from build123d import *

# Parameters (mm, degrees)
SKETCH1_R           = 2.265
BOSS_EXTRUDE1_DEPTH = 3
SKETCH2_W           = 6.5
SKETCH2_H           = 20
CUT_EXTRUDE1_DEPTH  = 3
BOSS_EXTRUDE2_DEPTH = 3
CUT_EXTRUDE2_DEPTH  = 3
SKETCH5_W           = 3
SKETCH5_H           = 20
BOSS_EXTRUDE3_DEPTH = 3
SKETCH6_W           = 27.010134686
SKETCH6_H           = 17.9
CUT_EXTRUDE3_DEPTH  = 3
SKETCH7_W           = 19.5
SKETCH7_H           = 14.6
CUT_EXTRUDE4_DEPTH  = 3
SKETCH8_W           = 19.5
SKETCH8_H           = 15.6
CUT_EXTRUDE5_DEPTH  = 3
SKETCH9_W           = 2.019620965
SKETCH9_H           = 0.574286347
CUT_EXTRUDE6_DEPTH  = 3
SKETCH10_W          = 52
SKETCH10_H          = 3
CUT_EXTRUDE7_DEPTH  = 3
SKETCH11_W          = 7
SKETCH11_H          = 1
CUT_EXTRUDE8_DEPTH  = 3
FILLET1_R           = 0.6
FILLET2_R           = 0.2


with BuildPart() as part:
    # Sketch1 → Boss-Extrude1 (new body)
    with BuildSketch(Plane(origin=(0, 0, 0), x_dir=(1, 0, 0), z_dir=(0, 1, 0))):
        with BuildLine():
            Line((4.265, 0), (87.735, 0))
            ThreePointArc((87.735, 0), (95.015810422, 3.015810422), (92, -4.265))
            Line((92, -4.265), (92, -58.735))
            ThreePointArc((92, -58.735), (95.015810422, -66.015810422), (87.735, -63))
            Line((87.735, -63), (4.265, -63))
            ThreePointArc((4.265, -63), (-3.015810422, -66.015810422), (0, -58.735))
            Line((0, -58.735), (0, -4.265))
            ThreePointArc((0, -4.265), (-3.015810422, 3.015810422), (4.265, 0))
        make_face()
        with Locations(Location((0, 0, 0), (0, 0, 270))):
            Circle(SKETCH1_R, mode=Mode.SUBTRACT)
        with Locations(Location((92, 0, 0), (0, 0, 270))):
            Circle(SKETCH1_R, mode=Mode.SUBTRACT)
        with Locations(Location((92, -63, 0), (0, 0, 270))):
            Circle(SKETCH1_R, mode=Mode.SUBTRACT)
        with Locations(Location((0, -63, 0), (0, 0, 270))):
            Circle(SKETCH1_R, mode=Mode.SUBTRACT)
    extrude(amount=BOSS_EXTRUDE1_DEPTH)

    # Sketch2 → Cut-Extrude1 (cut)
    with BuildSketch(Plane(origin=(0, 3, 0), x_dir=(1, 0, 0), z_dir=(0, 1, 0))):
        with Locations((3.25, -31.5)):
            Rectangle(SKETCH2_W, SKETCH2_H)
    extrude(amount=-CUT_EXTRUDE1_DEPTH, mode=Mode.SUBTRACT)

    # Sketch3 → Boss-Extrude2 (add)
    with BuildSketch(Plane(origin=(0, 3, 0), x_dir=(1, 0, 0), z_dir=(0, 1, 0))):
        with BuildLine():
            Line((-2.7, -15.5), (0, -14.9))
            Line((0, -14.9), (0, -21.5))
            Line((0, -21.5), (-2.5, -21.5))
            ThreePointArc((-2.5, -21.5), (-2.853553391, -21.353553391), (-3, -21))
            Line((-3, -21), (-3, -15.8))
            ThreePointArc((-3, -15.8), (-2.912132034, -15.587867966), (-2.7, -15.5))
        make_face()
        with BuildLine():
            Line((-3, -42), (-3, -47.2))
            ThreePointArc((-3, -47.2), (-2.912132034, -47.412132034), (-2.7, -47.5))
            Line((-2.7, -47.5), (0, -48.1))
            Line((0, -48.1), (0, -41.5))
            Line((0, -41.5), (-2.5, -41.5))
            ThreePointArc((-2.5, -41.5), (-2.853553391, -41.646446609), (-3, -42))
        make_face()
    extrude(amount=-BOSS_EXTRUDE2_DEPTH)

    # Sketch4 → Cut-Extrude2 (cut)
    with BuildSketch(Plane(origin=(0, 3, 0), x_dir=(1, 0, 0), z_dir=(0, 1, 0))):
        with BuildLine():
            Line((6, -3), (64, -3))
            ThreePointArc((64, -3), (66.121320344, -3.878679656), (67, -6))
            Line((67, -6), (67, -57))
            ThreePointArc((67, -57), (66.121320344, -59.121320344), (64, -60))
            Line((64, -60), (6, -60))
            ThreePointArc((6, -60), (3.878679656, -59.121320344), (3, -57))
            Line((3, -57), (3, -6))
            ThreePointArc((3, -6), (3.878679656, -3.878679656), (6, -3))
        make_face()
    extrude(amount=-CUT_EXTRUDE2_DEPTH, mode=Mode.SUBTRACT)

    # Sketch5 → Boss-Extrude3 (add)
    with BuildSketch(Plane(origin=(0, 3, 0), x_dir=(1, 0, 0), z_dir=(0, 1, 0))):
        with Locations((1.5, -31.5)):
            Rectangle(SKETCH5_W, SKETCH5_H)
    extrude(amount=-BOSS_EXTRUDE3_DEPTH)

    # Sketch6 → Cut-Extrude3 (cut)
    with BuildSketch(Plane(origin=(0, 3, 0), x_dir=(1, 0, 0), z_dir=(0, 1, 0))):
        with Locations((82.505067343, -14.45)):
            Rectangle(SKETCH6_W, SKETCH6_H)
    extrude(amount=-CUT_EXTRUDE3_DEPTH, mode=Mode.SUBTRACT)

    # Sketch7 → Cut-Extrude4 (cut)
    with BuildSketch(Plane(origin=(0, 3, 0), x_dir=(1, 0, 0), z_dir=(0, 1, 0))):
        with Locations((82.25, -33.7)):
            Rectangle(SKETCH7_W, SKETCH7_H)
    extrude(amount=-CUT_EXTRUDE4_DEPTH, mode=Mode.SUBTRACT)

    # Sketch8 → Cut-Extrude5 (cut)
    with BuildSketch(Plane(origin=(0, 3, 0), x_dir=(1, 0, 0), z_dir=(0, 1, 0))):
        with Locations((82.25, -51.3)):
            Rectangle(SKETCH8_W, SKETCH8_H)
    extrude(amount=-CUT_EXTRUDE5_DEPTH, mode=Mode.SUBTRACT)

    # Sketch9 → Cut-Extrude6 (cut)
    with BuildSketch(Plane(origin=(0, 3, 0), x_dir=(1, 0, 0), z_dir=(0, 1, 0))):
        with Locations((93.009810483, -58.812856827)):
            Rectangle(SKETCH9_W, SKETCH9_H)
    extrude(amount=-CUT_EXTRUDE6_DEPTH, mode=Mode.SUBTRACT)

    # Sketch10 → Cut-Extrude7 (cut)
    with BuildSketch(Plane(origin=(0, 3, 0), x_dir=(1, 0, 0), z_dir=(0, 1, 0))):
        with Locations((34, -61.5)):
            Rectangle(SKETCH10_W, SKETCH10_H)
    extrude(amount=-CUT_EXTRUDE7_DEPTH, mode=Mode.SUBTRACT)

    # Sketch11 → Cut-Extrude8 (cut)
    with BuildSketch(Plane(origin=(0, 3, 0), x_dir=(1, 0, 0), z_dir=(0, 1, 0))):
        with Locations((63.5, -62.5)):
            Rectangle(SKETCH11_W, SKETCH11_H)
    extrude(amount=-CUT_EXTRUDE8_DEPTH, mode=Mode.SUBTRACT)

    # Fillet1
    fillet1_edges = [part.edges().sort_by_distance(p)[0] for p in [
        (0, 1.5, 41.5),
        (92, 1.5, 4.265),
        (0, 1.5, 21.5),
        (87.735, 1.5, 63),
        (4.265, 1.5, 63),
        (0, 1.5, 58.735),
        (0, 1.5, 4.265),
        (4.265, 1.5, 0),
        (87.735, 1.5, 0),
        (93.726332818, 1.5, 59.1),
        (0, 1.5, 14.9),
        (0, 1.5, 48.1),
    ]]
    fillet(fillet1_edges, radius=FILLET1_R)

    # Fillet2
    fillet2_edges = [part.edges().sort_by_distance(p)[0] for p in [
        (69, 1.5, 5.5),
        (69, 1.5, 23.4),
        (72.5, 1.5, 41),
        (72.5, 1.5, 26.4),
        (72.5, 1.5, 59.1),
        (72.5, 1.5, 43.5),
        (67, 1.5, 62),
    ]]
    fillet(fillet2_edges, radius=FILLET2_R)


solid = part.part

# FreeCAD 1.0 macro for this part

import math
import FreeCAD as App
import Part
import Sketcher
Q = App.Units.Quantity


def edges_at(feature, points):
    """Names of the edges that pass closest to the given points."""
    edges = feature.Shape.Edges
    near = lambda p: min(range(len(edges)), key=lambda i: edges[i].distToShape(Part.Vertex(*p))[0])
    return sorted({f"Edge{near(p) + 1}" for p in points})


def add_polygon(sketch, points):
    """Adds a closed chain of lines whose ends are joined by coincident constraints."""
    first, n = sketch.GeometryCount, len(points)
    for a, b in zip(points, points[1:] + points[:1]):
        sketch.addGeometry(Part.LineSegment(App.Vector(*a, 0), App.Vector(*b, 0)), False)
    for i in range(n):
        sketch.addConstraint(Sketcher.Constraint("Coincident", first + i, 2, first + (i + 1) % n, 1))

doc = App.newDocument("Part")
body = doc.addObject("PartDesign::Body", "Body")

sketch1 = body.newObject("Sketcher::SketchObject", "Sketch")
sketch1.AttachmentSupport = (doc.getObject("XZ_Plane"), [""])
sketch1.MapMode = "FlatFace"
sketch1.addGeometry([
    Part.LineSegment(App.Vector(87.7, 0, 0), App.Vector(4.3, 0, 0)),
    Part.ArcOfCircle(Part.Circle(App.Vector(0, 0, 0), App.Vector(0, 0, 1), 4.3), math.radians(90), math.radians(360)),
    Part.LineSegment(App.Vector(0, 4.3, 0), App.Vector(0, 58.7, 0)),
    Part.ArcOfCircle(Part.Circle(App.Vector(0, 63, 0), App.Vector(0, 0, 1), 4.3), math.radians(0), math.radians(270)),
    Part.LineSegment(App.Vector(4.3, 63, 0), App.Vector(87.7, 63, 0)),
    Part.ArcOfCircle(Part.Circle(App.Vector(92, 63, 0), App.Vector(0, 0, 1), 4.3), math.radians(-90), math.radians(180)),
    Part.LineSegment(App.Vector(92, 58.7, 0), App.Vector(92, 4.3, 0)),
    Part.ArcOfCircle(Part.Circle(App.Vector(92, 0, 0), App.Vector(0, 0, 1), 4.3), math.radians(180), math.radians(450)),
    Part.Circle(App.Vector(92, 63, 0), App.Vector(0, 0, 1), 2.3),
    Part.Circle(App.Vector(0, 63, 0), App.Vector(0, 0, 1), 2.3),
    Part.Circle(App.Vector(92, 0, 0), App.Vector(0, 0, 1), 2.3),
    Part.Circle(App.Vector(0, 0, 0), App.Vector(0, 0, 1), 2.3),
], False)
sketch1.addConstraint([
    Sketcher.Constraint("Coincident", 0, 2, 1, 2),
    Sketcher.Constraint("Coincident", 1, 1, 2, 1),
    Sketcher.Constraint("Coincident", 2, 2, 3, 2),
    Sketcher.Constraint("Coincident", 3, 1, 4, 1),
    Sketcher.Constraint("Coincident", 4, 2, 5, 2),
    Sketcher.Constraint("Coincident", 5, 1, 6, 1),
    Sketcher.Constraint("Coincident", 6, 2, 7, 2),
    Sketcher.Constraint("Coincident", 7, 1, 0, 1),
    Sketcher.Constraint("Horizontal", 0),
    Sketcher.Constraint("Vertical", 2),
    Sketcher.Constraint("Horizontal", 4),
    Sketcher.Constraint("Vertical", 6),
    Sketcher.Constraint("Coincident", 1, 3, -1, 1),
    Sketcher.Constraint("Coincident", 11, 3, -1, 1),
    Sketcher.Constraint("Coincident", 8, 3, 5, 3),
    Sketcher.Constraint("Coincident", 9, 3, 3, 3),
    Sketcher.Constraint("Coincident", 10, 3, 7, 3),
    Sketcher.Constraint("Equal", 1, 3),
    Sketcher.Constraint("Equal", 3, 5),
    Sketcher.Constraint("Equal", 5, 7),
    Sketcher.Constraint("Equal", 8, 9),
    Sketcher.Constraint("Equal", 9, 10),
    Sketcher.Constraint("Equal", 10, 11),
    Sketcher.Constraint("PointOnObject", 3, 3, -2),
    Sketcher.Constraint("PointOnObject", 7, 3, -1),
    Sketcher.Constraint("PointOnObject", 0, 2, -1),
    Sketcher.Constraint("PointOnObject", 1, 1, -2),
    Sketcher.Constraint("Horizontal", 3, 3, 5, 3),
    Sketcher.Constraint("Horizontal", 9, 3, 3, 1),
    Sketcher.Constraint("Vertical", 5, 3, 7, 3),
    Sketcher.Constraint("Vertical", 10, 3, 5, 1),
    Sketcher.Constraint("Diameter", 8, Q("4.53 mm")),
    Sketcher.Constraint("DistanceY", -1, 1, 3, 3, Q("63 mm")),
    Sketcher.Constraint("DistanceX", -1, 1, 5, 3, Q("92 mm")),
    Sketcher.Constraint("Radius", 1, Q("4.265 mm")),
])
pad1 = body.newObject("PartDesign::Pad", "Pad")
pad1.Profile = sketch1
pad1.Length = 3
pad1.Reversed = True

sketch2 = body.newObject("Sketcher::SketchObject", "Sketch001")
sketch2.AttachmentSupport = (doc.getObject("XZ_Plane"), [""])
sketch2.MapMode = "FlatFace"
sketch2.AttachmentOffset = App.Placement(App.Vector(0, 0, -3), App.Rotation())
add_polygon(sketch2, [(0, 22), (0, 42), (6, 42), (6, 22)])
sketch2.addConstraint([
    Sketcher.Constraint("Vertical", 0),
    Sketcher.Constraint("Horizontal", 1),
    Sketcher.Constraint("Vertical", 2),
    Sketcher.Constraint("Horizontal", 3),
    Sketcher.Constraint("PointOnObject", 0, 2, -2),
    Sketcher.Constraint("DistanceY", 0, 1, 0, 2, Q("20 mm")),
    Sketcher.Constraint("DistanceX", 1, 1, 1, 2, Q("6.5 mm")),
    Sketcher.Constraint("DistanceY", -1, 1, 0, 2, Q("41.5 mm")),
])
pocket1 = body.newObject("PartDesign::Pocket", "Pocket")
pocket1.Profile = sketch2
pocket1.Length = 3
pocket1.Reversed = True

sketch3 = body.newObject("Sketcher::SketchObject", "Sketch002")
sketch3.AttachmentSupport = (doc.getObject("XZ_Plane"), [""])
sketch3.MapMode = "FlatFace"
sketch3.AttachmentOffset = App.Placement(App.Vector(0, 0, -3), App.Rotation())
sketch3.addGeometry([
    Part.LineSegment(App.Vector(0, 14.9, 0), App.Vector(-2.7, 15.5, 0)),
    Part.ArcOfCircle(Part.Circle(App.Vector(-2.7, 15.8, 0), App.Vector(0, 0, 1), 0.3), math.radians(-180), math.radians(-90)),
    Part.LineSegment(App.Vector(-3, 15.8, 0), App.Vector(-3, 21, 0)),
    Part.ArcOfCircle(Part.Circle(App.Vector(-2.5, 21, 0), App.Vector(0, 0, 1), 0.5), math.radians(90), math.radians(180)),
    Part.LineSegment(App.Vector(-2.5, 21.5, 0), App.Vector(0, 21.5, 0)),
    Part.LineSegment(App.Vector(0, 21.5, 0), App.Vector(0, 14.9, 0)),
    Part.LineSegment(App.Vector(-3, 42, 0), App.Vector(-3, 47.2, 0)),
    Part.ArcOfCircle(Part.Circle(App.Vector(-2.7, 47.2, 0), App.Vector(0, 0, 1), 0.3), math.radians(90), math.radians(180)),
    Part.LineSegment(App.Vector(-2.7, 47.5, 0), App.Vector(0, 48.1, 0)),
    Part.LineSegment(App.Vector(0, 48.1, 0), App.Vector(0, 41.5, 0)),
    Part.LineSegment(App.Vector(0, 41.5, 0), App.Vector(-2.5, 41.5, 0)),
    Part.ArcOfCircle(Part.Circle(App.Vector(-2.5, 42, 0), App.Vector(0, 0, 1), 0.5), math.radians(180), math.radians(270)),
], False)
sketch3.addConstraint([
    Sketcher.Constraint("Coincident", 0, 2, 1, 2),
    Sketcher.Constraint("Tangent", 1, 1, 2, 1),
    Sketcher.Constraint("Tangent", 2, 2, 3, 2),
    Sketcher.Constraint("Tangent", 3, 1, 4, 1),
    Sketcher.Constraint("Coincident", 4, 2, 5, 1),
    Sketcher.Constraint("Coincident", 5, 2, 0, 1),
    Sketcher.Constraint("Tangent", 6, 2, 7, 2),
    Sketcher.Constraint("Coincident", 7, 1, 8, 1),
    Sketcher.Constraint("Coincident", 8, 2, 9, 1),
    Sketcher.Constraint("Coincident", 9, 2, 10, 1),
    Sketcher.Constraint("Tangent", 10, 2, 11, 2),
    Sketcher.Constraint("Tangent", 11, 1, 6, 1),
    Sketcher.Constraint("Vertical", 2),
    Sketcher.Constraint("Horizontal", 4),
    Sketcher.Constraint("Vertical", 5),
    Sketcher.Constraint("Vertical", 6),
    Sketcher.Constraint("Vertical", 9),
    Sketcher.Constraint("Horizontal", 10),
    Sketcher.Constraint("Equal", 1, 7),
    Sketcher.Constraint("Equal", 3, 11),
    Sketcher.Constraint("PointOnObject", 4, 2, -2),
    Sketcher.Constraint("PointOnObject", 8, 2, -2),
    Sketcher.Constraint("Vertical", 1, 3, 7, 3),
    Sketcher.Constraint("Vertical", 7, 3, 0, 2),
    Sketcher.Constraint("Vertical", 0, 2, 7, 1),
    Sketcher.Constraint("Equal", 2, 6),
    Sketcher.Constraint("Equal", 5, 9),
    Sketcher.Constraint("Radius", 1, Q("0.3 mm")),
    Sketcher.Constraint("Radius", 3, Q("0.5 mm")),
    Sketcher.Constraint("DistanceX", 4, 1, 4, 2, Q("2.5 mm")),
    Sketcher.Constraint("DistanceY", 2, 1, 2, 2, Q("5.2 mm")),
    Sketcher.Constraint("DistanceY", 5, 2, 5, 1, Q("6.6 mm")),
    Sketcher.Constraint("DistanceY", -1, 1, 3, 3, Q("21 mm")),
    Sketcher.Constraint("DistanceY", -1, 1, 11, 3, Q("42 mm")),
])
pad2 = body.newObject("PartDesign::Pad", "Pad001")
pad2.Profile = sketch3
pad2.Length = 3

sketch4 = body.newObject("Sketcher::SketchObject", "Sketch003")
sketch4.AttachmentSupport = (doc.getObject("XZ_Plane"), [""])
sketch4.MapMode = "FlatFace"
sketch4.AttachmentOffset = App.Placement(App.Vector(0, 0, -3), App.Rotation())
sketch4.addGeometry([
    Part.LineSegment(App.Vector(64, 3, 0), App.Vector(6, 3, 0)),
    Part.ArcOfCircle(Part.Circle(App.Vector(6, 6, 0), App.Vector(0, 0, 1), 3), math.radians(180), math.radians(270)),
    Part.LineSegment(App.Vector(3, 6, 0), App.Vector(3, 57, 0)),
    Part.ArcOfCircle(Part.Circle(App.Vector(6, 57, 0), App.Vector(0, 0, 1), 3), math.radians(90), math.radians(180)),
    Part.LineSegment(App.Vector(6, 60, 0), App.Vector(64, 60, 0)),
    Part.ArcOfCircle(Part.Circle(App.Vector(64, 57, 0), App.Vector(0, 0, 1), 3), math.radians(0), math.radians(90)),
    Part.LineSegment(App.Vector(67, 57, 0), App.Vector(67, 6, 0)),
    Part.ArcOfCircle(Part.Circle(App.Vector(64, 6, 0), App.Vector(0, 0, 1), 3), math.radians(-90), math.radians(0)),
], False)
sketch4.addConstraint([
    Sketcher.Constraint("Tangent", 0, 2, 1, 2),
    Sketcher.Constraint("Tangent", 1, 1, 2, 1),
    Sketcher.Constraint("Tangent", 2, 2, 3, 2),
    Sketcher.Constraint("Tangent", 3, 1, 4, 1),
    Sketcher.Constraint("Tangent", 4, 2, 5, 2),
    Sketcher.Constraint("Tangent", 5, 1, 6, 1),
    Sketcher.Constraint("Tangent", 6, 2, 7, 2),
    Sketcher.Constraint("Tangent", 7, 1, 0, 1),
    Sketcher.Constraint("Horizontal", 0),
    Sketcher.Constraint("Vertical", 2),
    Sketcher.Constraint("Horizontal", 4),
    Sketcher.Constraint("Vertical", 6),
    Sketcher.Constraint("Equal", 1, 3),
    Sketcher.Constraint("Equal", 3, 5),
    Sketcher.Constraint("Equal", 5, 7),
    Sketcher.Constraint("Radius", 1, Q("3 mm")),
    Sketcher.Constraint("DistanceX", 0, 2, 0, 1, Q("58 mm")),
    Sketcher.Constraint("DistanceY", 2, 1, 2, 2, Q("51 mm")),
    Sketcher.Constraint("DistanceX", -1, 1, 1, 3, Q("6 mm")),
    Sketcher.Constraint("DistanceY", -1, 1, 1, 3, Q("6 mm")),
])
pocket2 = body.newObject("PartDesign::Pocket", "Pocket001")
pocket2.Profile = sketch4
pocket2.Length = 3
pocket2.Reversed = True

sketch5 = body.newObject("Sketcher::SketchObject", "Sketch004")
sketch5.AttachmentSupport = (doc.getObject("XZ_Plane"), [""])
sketch5.MapMode = "FlatFace"
sketch5.AttachmentOffset = App.Placement(App.Vector(0, 0, -3), App.Rotation())
add_polygon(sketch5, [(0, 21.5), (0, 41.5), (3, 41.5), (3, 21.5)])
sketch5.addConstraint([
    Sketcher.Constraint("Vertical", 0),
    Sketcher.Constraint("Horizontal", 1),
    Sketcher.Constraint("Vertical", 2),
    Sketcher.Constraint("Horizontal", 3),
    Sketcher.Constraint("PointOnObject", 0, 2, -2),
    Sketcher.Constraint("DistanceX", 1, 1, 1, 2, Q("3 mm")),
    Sketcher.Constraint("DistanceY", 0, 1, 0, 2, Q("20 mm")),
    Sketcher.Constraint("DistanceY", -1, 1, 0, 2, Q("41.5 mm")),
])
pad3 = body.newObject("PartDesign::Pad", "Pad002")
pad3.Profile = sketch5
pad3.Length = 3

sketch6 = body.newObject("Sketcher::SketchObject", "Sketch005")
sketch6.AttachmentSupport = (doc.getObject("XZ_Plane"), [""])
sketch6.MapMode = "FlatFace"
sketch6.AttachmentOffset = App.Placement(App.Vector(0, 0, -3), App.Rotation())
add_polygon(sketch6, [(69, 6), (69, 23), (96, 23), (96, 6)])
sketch6.addConstraint([
    Sketcher.Constraint("Vertical", 0),
    Sketcher.Constraint("Horizontal", 1),
    Sketcher.Constraint("Vertical", 2),
    Sketcher.Constraint("Horizontal", 3),
    Sketcher.Constraint("DistanceY", 0, 1, 0, 2, Q("17.9 mm")),
    Sketcher.Constraint("DistanceX", -1, 1, 0, 2, Q("69 mm")),
    Sketcher.Constraint("DistanceY", -1, 1, 0, 2, Q("23.4 mm")),
    Sketcher.Constraint("DistanceX", 1, 1, 1, 2, Q("27.010135 mm")),
])
pocket3 = body.newObject("PartDesign::Pocket", "Pocket002")
pocket3.Profile = sketch6
pocket3.Length = 3
pocket3.Reversed = True

sketch7 = body.newObject("Sketcher::SketchObject", "Sketch006")
sketch7.AttachmentSupport = (doc.getObject("XZ_Plane"), [""])
sketch7.MapMode = "FlatFace"
sketch7.AttachmentOffset = App.Placement(App.Vector(0, 0, -3), App.Rotation())
add_polygon(sketch7, [(72, 26), (72, 41), (92, 41), (92, 26)])
sketch7.addConstraint([
    Sketcher.Constraint("Vertical", 0),
    Sketcher.Constraint("Horizontal", 1),
    Sketcher.Constraint("Vertical", 2),
    Sketcher.Constraint("Horizontal", 3),
    Sketcher.Constraint("DistanceX", 1, 1, 1, 2, Q("19.5 mm")),
    Sketcher.Constraint("DistanceY", 0, 1, 0, 2, Q("14.6 mm")),
    Sketcher.Constraint("DistanceY", -1, 1, 0, 2, Q("41 mm")),
    Sketcher.Constraint("DistanceX", -1, 1, 1, 2, Q("92 mm")),
])
pocket4 = body.newObject("PartDesign::Pocket", "Pocket003")
pocket4.Profile = sketch7
pocket4.Length = 3
pocket4.Reversed = True

sketch8 = body.newObject("Sketcher::SketchObject", "Sketch007")
sketch8.AttachmentSupport = (doc.getObject("XZ_Plane"), [""])
sketch8.MapMode = "FlatFace"
sketch8.AttachmentOffset = App.Placement(App.Vector(0, 0, -3), App.Rotation())
add_polygon(sketch8, [(72, 44), (72, 59), (92, 59), (92, 44)])
sketch8.addConstraint([
    Sketcher.Constraint("Vertical", 0),
    Sketcher.Constraint("Horizontal", 1),
    Sketcher.Constraint("Vertical", 2),
    Sketcher.Constraint("Horizontal", 3),
    Sketcher.Constraint("DistanceX", 1, 1, 1, 2, Q("19.5 mm")),
    Sketcher.Constraint("DistanceY", 0, 1, 0, 2, Q("15.6 mm")),
    Sketcher.Constraint("DistanceX", -1, 1, 1, 2, Q("92 mm")),
    Sketcher.Constraint("DistanceY", -1, 1, 0, 2, Q("59.1 mm")),
])
pocket5 = body.newObject("PartDesign::Pocket", "Pocket004")
pocket5.Profile = sketch8
pocket5.Length = 3
pocket5.Reversed = True

sketch9 = body.newObject("Sketcher::SketchObject", "Sketch008")
sketch9.AttachmentSupport = (doc.getObject("XZ_Plane"), [""])
sketch9.MapMode = "FlatFace"
sketch9.AttachmentOffset = App.Placement(App.Vector(0, 0, -3), App.Rotation())
add_polygon(sketch9, [(92, 58.5), (92, 59.1), (94, 59.1), (94, 58.5)])
sketch9.addConstraint([
    Sketcher.Constraint("Vertical", 0),
    Sketcher.Constraint("Horizontal", 1),
    Sketcher.Constraint("Vertical", 2),
    Sketcher.Constraint("Horizontal", 3),
    Sketcher.Constraint("DistanceX", -1, 1, 0, 2, Q("92 mm")),
    Sketcher.Constraint("DistanceY", -1, 1, 0, 2, Q("59.1 mm")),
    Sketcher.Constraint("DistanceX", 1, 1, 1, 2, Q("2.019621 mm")),
    Sketcher.Constraint("DistanceY", 0, 1, 0, 2, Q("0.574286 mm")),
])
pocket6 = body.newObject("PartDesign::Pocket", "Pocket005")
pocket6.Profile = sketch9
pocket6.Length = 3
pocket6.Reversed = True

sketch10 = body.newObject("Sketcher::SketchObject", "Sketch009")
sketch10.AttachmentSupport = (doc.getObject("XZ_Plane"), [""])
sketch10.MapMode = "FlatFace"
sketch10.AttachmentOffset = App.Placement(App.Vector(0, 0, -3), App.Rotation())
add_polygon(sketch10, [(8, 60), (8, 63), (60, 63), (60, 60)])
sketch10.addConstraint([
    Sketcher.Constraint("Vertical", 0),
    Sketcher.Constraint("Horizontal", 1),
    Sketcher.Constraint("Vertical", 2),
    Sketcher.Constraint("Horizontal", 3),
    Sketcher.Constraint("DistanceX", 1, 1, 1, 2, Q("52 mm")),
    Sketcher.Constraint("DistanceY", 0, 1, 0, 2, Q("3 mm")),
    Sketcher.Constraint("DistanceX", -1, 1, 0, 2, Q("8 mm")),
    Sketcher.Constraint("DistanceY", -1, 1, 0, 2, Q("63 mm")),
])
pocket7 = body.newObject("PartDesign::Pocket", "Pocket006")
pocket7.Profile = sketch10
pocket7.Length = 3
pocket7.Reversed = True

sketch11 = body.newObject("Sketcher::SketchObject", "Sketch010")
sketch11.AttachmentSupport = (doc.getObject("XZ_Plane"), [""])
sketch11.MapMode = "FlatFace"
sketch11.AttachmentOffset = App.Placement(App.Vector(0, 0, -3), App.Rotation())
add_polygon(sketch11, [(60, 62), (60, 63), (67, 63), (67, 62)])
sketch11.addConstraint([
    Sketcher.Constraint("Vertical", 0),
    Sketcher.Constraint("Horizontal", 1),
    Sketcher.Constraint("Vertical", 2),
    Sketcher.Constraint("Horizontal", 3),
    Sketcher.Constraint("DistanceX", 1, 1, 1, 2, Q("7 mm")),
    Sketcher.Constraint("DistanceY", 0, 1, 0, 2, Q("1 mm")),
    Sketcher.Constraint("DistanceX", -1, 1, 0, 2, Q("60 mm")),
    Sketcher.Constraint("DistanceY", -1, 1, 0, 2, Q("63 mm")),
])
pocket8 = body.newObject("PartDesign::Pocket", "Pocket007")
pocket8.Profile = sketch11
pocket8.Length = 3
pocket8.Reversed = True
doc.recompute()

fillet = body.newObject("PartDesign::Fillet", "Fillet")
fillet.Base = (pocket8, edges_at(pocket8, [
    (0, 1.5, 41.5),
    (92, 1.5, 4.265),
    (0, 1.5, 21.5),
    (87.735, 1.5, 63),
    (4.265, 1.5, 63),
    (0, 1.5, 58.735),
    (0, 1.5, 4.265),
    (4.265, 1.5, 0),
    (87.735, 1.5, 0),
    (93.726, 1.5, 59.1),
    (0, 1.5, 14.9),
    (0, 1.5, 48.1),
]))
fillet.Radius = 0.6
doc.recompute()

fillet2 = body.newObject("PartDesign::Fillet", "Fillet001")
fillet2.Base = (fillet, edges_at(fillet, [
    (69, 1.5, 5.5),
    (69, 1.5, 23.4),
    (72.5, 1.5, 41),
    (72.5, 1.5, 26.4),
    (72.5, 1.5, 59.1),
    (72.5, 1.5, 43.5),
    (67, 1.5, 62),
]))
fillet2.Radius = 0.2

doc.recompute()
